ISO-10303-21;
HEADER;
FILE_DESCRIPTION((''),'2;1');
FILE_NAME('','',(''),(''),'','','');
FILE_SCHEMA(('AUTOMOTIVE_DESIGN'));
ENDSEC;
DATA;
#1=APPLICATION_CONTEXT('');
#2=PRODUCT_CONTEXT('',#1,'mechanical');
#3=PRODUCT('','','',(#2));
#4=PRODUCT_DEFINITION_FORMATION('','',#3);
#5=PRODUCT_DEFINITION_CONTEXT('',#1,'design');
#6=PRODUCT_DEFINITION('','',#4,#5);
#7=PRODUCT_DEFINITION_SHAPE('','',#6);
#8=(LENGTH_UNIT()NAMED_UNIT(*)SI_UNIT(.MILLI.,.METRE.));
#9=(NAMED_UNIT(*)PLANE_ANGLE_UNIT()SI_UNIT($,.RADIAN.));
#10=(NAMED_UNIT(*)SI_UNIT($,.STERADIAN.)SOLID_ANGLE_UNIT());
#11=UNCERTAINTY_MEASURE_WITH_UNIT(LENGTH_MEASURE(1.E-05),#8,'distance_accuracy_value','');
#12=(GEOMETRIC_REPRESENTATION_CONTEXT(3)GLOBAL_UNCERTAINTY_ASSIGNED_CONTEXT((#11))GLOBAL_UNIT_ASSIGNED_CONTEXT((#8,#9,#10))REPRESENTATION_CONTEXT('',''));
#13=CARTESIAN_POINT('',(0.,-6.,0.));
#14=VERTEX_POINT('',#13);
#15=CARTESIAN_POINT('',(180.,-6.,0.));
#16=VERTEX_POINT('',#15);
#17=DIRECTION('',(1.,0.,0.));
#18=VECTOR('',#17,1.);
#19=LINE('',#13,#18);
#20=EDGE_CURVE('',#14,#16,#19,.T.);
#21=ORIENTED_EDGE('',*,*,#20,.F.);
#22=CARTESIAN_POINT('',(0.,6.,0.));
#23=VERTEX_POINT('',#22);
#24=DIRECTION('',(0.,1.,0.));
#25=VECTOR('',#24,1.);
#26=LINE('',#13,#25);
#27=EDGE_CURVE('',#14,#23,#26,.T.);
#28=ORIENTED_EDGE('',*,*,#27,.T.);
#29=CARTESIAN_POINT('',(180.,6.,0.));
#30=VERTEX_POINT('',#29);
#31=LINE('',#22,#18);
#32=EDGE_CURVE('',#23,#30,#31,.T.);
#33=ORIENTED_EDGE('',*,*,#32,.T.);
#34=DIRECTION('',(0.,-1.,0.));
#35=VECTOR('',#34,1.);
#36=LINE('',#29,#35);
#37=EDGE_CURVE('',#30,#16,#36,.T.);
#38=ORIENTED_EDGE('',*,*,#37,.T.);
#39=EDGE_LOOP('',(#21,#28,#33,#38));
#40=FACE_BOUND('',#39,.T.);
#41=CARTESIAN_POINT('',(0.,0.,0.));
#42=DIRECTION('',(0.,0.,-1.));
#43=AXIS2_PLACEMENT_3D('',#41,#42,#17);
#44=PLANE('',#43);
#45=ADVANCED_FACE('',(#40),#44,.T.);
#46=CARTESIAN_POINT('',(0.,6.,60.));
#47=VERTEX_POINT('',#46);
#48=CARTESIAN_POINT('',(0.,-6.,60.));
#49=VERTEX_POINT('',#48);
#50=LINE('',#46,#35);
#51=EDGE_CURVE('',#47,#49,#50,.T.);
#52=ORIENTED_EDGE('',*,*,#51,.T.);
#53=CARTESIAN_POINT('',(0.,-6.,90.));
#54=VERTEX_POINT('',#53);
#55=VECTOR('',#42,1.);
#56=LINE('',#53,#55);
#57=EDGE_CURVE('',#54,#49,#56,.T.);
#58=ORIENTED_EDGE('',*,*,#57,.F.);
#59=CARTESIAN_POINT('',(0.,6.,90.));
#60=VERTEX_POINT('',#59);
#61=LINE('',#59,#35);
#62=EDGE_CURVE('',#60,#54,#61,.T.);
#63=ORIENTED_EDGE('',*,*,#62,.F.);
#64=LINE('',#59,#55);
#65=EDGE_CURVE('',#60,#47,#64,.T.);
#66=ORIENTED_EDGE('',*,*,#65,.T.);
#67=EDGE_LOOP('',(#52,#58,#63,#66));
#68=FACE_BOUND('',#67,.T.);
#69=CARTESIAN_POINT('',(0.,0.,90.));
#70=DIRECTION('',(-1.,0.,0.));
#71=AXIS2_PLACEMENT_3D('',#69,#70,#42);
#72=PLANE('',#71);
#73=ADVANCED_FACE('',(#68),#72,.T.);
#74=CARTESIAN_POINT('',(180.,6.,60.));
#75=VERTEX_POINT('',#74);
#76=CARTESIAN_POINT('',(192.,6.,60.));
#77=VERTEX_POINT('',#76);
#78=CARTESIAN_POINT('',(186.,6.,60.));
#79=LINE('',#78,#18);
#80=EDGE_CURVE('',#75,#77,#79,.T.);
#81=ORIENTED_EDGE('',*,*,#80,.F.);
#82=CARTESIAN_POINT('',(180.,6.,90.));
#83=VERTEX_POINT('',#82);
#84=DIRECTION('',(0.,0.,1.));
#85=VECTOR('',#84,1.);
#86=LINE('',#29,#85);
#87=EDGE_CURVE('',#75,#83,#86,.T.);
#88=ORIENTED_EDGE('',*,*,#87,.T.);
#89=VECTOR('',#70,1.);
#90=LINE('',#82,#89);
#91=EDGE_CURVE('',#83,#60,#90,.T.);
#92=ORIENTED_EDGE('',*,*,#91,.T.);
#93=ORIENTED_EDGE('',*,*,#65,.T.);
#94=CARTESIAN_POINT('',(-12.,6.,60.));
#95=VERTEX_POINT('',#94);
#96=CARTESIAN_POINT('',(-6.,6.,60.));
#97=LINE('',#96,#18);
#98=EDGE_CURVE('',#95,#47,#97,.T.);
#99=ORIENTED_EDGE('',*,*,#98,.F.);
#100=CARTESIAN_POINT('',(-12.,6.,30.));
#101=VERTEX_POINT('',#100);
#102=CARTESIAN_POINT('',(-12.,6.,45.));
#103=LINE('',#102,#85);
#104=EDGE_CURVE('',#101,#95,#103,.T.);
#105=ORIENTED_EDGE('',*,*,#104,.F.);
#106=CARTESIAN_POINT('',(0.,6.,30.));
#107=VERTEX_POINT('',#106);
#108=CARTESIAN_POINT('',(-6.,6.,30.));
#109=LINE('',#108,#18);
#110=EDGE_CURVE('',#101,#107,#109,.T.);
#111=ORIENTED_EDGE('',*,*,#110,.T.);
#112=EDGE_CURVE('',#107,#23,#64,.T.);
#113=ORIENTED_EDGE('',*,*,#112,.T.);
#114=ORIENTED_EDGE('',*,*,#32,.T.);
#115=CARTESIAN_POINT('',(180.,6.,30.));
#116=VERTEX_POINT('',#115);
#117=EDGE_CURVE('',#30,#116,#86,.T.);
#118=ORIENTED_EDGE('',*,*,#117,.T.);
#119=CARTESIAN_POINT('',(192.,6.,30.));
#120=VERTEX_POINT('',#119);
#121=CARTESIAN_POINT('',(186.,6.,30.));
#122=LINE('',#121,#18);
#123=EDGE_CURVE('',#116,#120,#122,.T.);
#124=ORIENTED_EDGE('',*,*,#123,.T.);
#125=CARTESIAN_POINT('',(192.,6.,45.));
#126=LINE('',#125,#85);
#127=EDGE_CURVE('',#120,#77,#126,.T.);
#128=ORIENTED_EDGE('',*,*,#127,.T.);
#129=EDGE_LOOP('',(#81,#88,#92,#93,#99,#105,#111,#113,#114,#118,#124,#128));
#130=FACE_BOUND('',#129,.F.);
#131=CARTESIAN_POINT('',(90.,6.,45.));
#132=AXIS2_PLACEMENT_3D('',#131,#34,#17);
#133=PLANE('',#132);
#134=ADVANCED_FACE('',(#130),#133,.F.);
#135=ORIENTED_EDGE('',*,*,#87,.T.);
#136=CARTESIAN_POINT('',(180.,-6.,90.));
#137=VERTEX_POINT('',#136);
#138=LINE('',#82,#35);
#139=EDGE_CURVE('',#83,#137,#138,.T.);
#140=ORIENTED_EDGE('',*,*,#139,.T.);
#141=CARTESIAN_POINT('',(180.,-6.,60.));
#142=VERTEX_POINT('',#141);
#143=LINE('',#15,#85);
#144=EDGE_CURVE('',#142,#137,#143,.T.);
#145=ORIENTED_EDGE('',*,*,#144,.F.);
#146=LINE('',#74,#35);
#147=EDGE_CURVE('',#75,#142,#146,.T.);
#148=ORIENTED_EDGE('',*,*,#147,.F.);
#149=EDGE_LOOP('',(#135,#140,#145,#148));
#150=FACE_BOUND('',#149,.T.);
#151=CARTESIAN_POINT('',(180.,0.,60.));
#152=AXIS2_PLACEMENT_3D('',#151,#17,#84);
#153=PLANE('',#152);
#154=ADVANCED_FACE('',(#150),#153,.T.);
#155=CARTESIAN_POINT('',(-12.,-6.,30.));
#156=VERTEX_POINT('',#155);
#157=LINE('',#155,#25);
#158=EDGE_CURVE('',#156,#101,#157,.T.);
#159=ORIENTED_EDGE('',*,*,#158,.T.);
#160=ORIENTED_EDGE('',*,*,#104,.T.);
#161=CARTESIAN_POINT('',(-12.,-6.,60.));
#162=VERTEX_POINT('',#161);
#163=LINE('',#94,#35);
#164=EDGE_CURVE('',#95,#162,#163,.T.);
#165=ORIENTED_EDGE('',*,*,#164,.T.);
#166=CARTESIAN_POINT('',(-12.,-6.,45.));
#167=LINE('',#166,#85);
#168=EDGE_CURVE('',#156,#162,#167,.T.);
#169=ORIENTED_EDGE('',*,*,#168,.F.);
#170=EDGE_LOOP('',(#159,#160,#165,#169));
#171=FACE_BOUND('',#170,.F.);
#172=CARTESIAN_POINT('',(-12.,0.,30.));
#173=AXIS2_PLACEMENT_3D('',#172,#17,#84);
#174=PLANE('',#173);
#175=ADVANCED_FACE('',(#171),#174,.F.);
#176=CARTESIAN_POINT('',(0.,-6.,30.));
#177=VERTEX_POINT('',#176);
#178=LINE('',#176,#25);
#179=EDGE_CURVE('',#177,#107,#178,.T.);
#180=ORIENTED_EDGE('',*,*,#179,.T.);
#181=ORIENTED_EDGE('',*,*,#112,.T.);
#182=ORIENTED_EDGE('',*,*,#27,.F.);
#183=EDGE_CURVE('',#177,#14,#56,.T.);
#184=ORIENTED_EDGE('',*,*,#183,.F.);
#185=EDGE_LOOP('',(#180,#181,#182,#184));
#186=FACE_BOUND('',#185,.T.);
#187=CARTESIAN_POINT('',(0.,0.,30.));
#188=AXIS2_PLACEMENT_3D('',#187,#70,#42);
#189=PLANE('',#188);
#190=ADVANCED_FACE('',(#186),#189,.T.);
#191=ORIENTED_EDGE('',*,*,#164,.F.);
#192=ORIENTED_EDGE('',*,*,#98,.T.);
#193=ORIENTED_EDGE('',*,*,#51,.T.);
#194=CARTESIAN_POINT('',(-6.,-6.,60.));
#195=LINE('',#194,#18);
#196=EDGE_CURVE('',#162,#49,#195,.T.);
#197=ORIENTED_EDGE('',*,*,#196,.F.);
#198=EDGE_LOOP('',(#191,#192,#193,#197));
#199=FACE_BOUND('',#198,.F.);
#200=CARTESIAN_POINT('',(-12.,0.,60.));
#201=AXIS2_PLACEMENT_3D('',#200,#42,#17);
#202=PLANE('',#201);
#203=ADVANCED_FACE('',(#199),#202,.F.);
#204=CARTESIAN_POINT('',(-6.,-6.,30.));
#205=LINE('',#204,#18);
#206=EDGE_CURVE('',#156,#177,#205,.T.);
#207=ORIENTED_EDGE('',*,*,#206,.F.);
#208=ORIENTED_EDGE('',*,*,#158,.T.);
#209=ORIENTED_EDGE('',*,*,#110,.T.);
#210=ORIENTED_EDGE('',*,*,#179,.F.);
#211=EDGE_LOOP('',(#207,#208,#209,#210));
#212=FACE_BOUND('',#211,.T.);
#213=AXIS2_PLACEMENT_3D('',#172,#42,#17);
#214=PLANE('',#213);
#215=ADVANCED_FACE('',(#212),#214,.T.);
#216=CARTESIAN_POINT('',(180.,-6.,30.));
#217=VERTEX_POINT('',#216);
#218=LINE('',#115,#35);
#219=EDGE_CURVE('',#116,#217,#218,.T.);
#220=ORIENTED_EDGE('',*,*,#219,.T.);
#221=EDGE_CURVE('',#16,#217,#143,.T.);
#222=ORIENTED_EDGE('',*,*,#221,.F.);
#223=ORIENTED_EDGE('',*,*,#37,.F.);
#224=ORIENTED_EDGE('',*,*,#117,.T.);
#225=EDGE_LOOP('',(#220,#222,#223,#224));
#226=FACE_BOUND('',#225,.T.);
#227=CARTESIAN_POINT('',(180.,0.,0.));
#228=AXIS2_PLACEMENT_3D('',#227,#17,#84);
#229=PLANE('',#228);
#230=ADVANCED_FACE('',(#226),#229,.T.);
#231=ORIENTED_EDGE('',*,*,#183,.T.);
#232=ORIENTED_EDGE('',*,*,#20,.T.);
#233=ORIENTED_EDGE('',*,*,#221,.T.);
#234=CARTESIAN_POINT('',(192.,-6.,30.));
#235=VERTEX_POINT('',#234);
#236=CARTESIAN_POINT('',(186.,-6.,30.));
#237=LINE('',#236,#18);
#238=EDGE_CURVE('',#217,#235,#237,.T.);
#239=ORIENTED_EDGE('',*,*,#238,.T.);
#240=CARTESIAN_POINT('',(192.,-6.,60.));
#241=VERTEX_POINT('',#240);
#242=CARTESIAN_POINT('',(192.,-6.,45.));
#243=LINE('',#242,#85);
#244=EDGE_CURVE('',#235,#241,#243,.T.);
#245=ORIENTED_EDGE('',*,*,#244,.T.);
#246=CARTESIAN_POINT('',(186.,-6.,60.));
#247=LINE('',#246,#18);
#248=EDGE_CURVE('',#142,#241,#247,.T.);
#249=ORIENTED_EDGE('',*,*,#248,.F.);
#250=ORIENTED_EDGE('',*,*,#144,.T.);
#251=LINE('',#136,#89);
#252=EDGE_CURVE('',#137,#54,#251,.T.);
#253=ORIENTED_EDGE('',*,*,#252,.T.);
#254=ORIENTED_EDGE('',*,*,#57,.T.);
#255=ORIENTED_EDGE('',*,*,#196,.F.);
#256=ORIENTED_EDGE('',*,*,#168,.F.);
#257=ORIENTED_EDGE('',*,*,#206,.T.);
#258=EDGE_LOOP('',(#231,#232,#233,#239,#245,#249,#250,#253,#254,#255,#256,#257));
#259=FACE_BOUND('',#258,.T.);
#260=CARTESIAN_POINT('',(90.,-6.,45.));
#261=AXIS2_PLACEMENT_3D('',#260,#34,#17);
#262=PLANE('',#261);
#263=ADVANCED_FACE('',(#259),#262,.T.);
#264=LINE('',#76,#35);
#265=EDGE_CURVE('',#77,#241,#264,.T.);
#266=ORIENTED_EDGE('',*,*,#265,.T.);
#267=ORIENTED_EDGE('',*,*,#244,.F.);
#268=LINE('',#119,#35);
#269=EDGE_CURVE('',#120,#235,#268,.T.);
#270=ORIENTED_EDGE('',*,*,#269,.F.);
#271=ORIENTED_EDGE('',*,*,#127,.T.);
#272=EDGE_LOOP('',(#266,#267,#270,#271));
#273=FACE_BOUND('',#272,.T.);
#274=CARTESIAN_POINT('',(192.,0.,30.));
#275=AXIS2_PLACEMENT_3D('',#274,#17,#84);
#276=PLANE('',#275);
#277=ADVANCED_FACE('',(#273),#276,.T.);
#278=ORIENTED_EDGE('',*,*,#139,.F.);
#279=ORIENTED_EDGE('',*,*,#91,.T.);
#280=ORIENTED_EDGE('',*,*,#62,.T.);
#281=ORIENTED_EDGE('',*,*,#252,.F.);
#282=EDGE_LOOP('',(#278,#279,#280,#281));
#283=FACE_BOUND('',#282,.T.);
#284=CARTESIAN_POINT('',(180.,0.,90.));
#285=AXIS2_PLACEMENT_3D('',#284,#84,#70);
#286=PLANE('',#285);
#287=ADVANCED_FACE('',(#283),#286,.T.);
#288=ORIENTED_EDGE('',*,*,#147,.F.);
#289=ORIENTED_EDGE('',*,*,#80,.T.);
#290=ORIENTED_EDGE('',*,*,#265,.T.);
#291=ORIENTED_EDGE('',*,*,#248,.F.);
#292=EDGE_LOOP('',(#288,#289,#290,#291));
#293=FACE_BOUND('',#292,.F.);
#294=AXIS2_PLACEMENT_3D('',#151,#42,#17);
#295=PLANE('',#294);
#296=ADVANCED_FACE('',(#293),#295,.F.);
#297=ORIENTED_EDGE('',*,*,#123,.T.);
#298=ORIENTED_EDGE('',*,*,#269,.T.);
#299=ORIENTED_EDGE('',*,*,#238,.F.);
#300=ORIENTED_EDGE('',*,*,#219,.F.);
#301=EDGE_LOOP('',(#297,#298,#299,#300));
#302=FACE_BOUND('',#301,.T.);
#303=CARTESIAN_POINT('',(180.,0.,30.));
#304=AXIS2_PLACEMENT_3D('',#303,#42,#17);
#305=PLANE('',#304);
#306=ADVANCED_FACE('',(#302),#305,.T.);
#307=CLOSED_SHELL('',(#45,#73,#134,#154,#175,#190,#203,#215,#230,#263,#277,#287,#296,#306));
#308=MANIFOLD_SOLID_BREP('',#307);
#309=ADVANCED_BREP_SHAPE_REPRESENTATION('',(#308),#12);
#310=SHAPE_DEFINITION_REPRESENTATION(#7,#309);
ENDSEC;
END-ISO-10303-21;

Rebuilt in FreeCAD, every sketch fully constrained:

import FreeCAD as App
import Part
import Sketcher
from FreeCAD import Vector
Q = App.Units.Quantity

doc = App.newDocument("Part")
body = doc.addObject("PartDesign::Body", "Body")

sketch1 = doc.addObject("Sketcher::SketchObject", "Sketch")
body.addObject(sketch1)
sketch1.AttachmentSupport = (doc.XZ_Plane, [""])
sketch1.MapMode = "FlatFace"
sketch1.addGeometry(Part.LineSegment(Vector(0, 0, 0), Vector(180, 0, 0)), False)
sketch1.addGeometry(Part.LineSegment(Vector(180, 0, 0), Vector(180, 30, 0)), False)
sketch1.addGeometry(Part.LineSegment(Vector(180, 30, 0), Vector(192, 30, 0)), False)
sketch1.addGeometry(Part.LineSegment(Vector(192, 30, 0), Vector(192, 60, 0)), False)
sketch1.addGeometry(Part.LineSegment(Vector(192, 60, 0), Vector(180, 60, 0)), False)
sketch1.addGeometry(Part.LineSegment(Vector(180, 60, 0), Vector(180, 90, 0)), False)
sketch1.addGeometry(Part.LineSegment(Vector(180, 90, 0), Vector(0, 90, 0)), False)
sketch1.addGeometry(Part.LineSegment(Vector(0, 90, 0), Vector(0, 60, 0)), False)
sketch1.addGeometry(Part.LineSegment(Vector(0, 60, 0), Vector(-12, 60, 0)), False)
sketch1.addGeometry(Part.LineSegment(Vector(-12, 60, 0), Vector(-12, 30, 0)), False)
sketch1.addGeometry(Part.LineSegment(Vector(-12, 30, 0), Vector(0, 30, 0)), False)
sketch1.addGeometry(Part.LineSegment(Vector(0, 30, 0), Vector(0, 0, 0)), False)
sketch1.addConstraint(Sketcher.Constraint("Coincident", 0, 2, 1, 1))
sketch1.addConstraint(Sketcher.Constraint("Coincident", 1, 2, 2, 1))
sketch1.addConstraint(Sketcher.Constraint("Coincident", 2, 2, 3, 1))
sketch1.addConstraint(Sketcher.Constraint("Coincident", 3, 2, 4, 1))
sketch1.addConstraint(Sketcher.Constraint("Coincident", 4, 2, 5, 1))
sketch1.addConstraint(Sketcher.Constraint("Coincident", 5, 2, 6, 1))
sketch1.addConstraint(Sketcher.Constraint("Coincident", 6, 2, 7, 1))
sketch1.addConstraint(Sketcher.Constraint("Coincident", 7, 2, 8, 1))
sketch1.addConstraint(Sketcher.Constraint("Coincident", 8, 2, 9, 1))
sketch1.addConstraint(Sketcher.Constraint("Coincident", 9, 2, 10, 1))
sketch1.addConstraint(Sketcher.Constraint("Coincident", 10, 2, 11, 1))
sketch1.addConstraint(Sketcher.Constraint("Coincident", 11, 2, 0, 1))
sketch1.addConstraint(Sketcher.Constraint("Horizontal", 0))
sketch1.addConstraint(Sketcher.Constraint("Vertical", 1))
sketch1.addConstraint(Sketcher.Constraint("Horizontal", 2))
sketch1.addConstraint(Sketcher.Constraint("Vertical", 3))
sketch1.addConstraint(Sketcher.Constraint("Horizontal", 4))
sketch1.addConstraint(Sketcher.Constraint("Vertical", 5))
sketch1.addConstraint(Sketcher.Constraint("Horizontal", 6))
sketch1.addConstraint(Sketcher.Constraint("Vertical", 7))
sketch1.addConstraint(Sketcher.Constraint("Horizontal", 8))
sketch1.addConstraint(Sketcher.Constraint("Vertical", 9))
sketch1.addConstraint(Sketcher.Constraint("Horizontal", 10))
sketch1.addConstraint(Sketcher.Constraint("Vertical", 11))
sketch1.addConstraint(Sketcher.Constraint("Coincident", 11, 2, -1, 1))
sketch1.addConstraint(Sketcher.Constraint("PointOnObject", 6, 2, -2))
sketch1.addConstraint(Sketcher.Constraint("Horizontal", 4, 2, 7, 2))
sketch1.addConstraint(Sketcher.Constraint("Horizontal", 2, 2, 9, 2))
sketch1.addConstraint(Sketcher.Constraint("Vertical", 1, 2, 4, 2))
sketch1.addConstraint(Sketcher.Constraint("Equal", 4, 8))
sketch1.addConstraint(Sketcher.Constraint("Equal", 1, 3))
sketch1.addConstraint(Sketcher.Constraint("Equal", 3, 5))
sketch1.addConstraint(Sketcher.Constraint("DistanceX", 0, 1, 0, 2, Q("180 mm")))
sketch1.addConstraint(Sketcher.Constraint("DistanceX", 2, 1, 2, 2, Q("12 mm")))
sketch1.addConstraint(Sketcher.Constraint("DistanceY", 1, 1, 1, 2, Q("30 mm")))
pad1 = doc.addObject("PartDesign::Pad", "Pad")
body.addObject(pad1)
pad1.Profile = sketch1
pad1.Length = 12
pad1.Midplane = True

doc.recompute()
